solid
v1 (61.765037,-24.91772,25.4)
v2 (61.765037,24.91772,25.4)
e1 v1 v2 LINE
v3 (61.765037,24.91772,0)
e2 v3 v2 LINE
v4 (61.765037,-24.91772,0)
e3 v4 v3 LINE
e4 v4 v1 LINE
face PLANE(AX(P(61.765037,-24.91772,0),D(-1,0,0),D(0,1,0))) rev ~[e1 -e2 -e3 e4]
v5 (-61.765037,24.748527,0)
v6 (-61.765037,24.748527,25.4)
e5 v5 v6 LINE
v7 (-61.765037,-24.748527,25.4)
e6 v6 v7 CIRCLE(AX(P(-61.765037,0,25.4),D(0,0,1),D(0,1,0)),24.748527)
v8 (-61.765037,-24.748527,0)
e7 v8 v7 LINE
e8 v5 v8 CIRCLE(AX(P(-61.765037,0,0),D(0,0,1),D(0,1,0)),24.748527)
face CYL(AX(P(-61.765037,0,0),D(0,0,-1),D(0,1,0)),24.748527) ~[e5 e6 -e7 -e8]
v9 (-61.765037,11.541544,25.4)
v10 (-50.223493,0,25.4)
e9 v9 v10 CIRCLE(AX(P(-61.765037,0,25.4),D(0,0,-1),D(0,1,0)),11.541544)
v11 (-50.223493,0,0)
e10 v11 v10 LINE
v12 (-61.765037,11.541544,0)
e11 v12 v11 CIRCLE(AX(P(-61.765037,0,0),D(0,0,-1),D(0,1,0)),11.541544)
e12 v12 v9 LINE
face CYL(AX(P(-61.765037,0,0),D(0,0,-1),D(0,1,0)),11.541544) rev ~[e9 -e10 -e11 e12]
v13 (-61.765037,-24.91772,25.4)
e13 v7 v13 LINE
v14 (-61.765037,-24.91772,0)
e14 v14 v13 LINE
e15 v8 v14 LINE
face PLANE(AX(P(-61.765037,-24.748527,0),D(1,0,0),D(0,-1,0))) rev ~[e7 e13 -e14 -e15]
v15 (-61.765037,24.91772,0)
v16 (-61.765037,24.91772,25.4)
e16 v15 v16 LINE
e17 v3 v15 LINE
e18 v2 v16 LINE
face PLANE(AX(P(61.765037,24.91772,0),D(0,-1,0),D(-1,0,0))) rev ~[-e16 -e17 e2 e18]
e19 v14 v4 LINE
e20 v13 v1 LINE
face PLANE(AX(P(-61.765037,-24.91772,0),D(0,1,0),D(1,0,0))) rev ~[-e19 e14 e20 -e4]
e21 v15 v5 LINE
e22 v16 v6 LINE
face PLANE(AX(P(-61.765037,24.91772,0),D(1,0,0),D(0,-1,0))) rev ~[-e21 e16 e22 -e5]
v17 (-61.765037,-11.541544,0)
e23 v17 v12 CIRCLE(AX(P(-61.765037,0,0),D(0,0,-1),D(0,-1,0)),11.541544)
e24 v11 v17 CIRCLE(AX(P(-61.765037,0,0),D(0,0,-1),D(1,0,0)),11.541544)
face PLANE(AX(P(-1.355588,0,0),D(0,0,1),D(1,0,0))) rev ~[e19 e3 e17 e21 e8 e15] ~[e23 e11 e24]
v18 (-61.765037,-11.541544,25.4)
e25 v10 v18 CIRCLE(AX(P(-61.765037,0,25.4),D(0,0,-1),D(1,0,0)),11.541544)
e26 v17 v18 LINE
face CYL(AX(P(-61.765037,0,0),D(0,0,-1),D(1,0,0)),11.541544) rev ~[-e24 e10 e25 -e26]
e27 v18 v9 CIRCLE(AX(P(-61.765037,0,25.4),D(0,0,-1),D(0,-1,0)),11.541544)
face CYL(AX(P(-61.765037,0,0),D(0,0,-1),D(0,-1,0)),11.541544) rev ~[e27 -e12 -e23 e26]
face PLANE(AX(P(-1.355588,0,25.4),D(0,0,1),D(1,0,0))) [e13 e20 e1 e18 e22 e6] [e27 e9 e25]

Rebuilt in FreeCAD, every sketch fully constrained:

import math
import FreeCAD as App
import Part
import Sketcher
Q = App.Units.Quantity

doc = App.newDocument("Part")
params = doc.addObject("Spreadsheet::Sheet", "Params")
for row, (alias, value) in enumerate([
    ("pad1_length", "1 in"),
], start=1):
    params.set(f"A{row}", alias)
    params.set(f"B{row}", "=" + value)
    params.setAlias(f"B{row}", alias)

body = doc.addObject("PartDesign::Body", "Body")

# Sketch on XY plane
sketch1 = body.newObject("Sketcher::SketchObject", "Sketch")
sketch1.AttachmentSupport = (doc.getObject("XY_Plane"), [""])
sketch1.MapMode = "FlatFace"
sketch1.addGeometry(Part.LineSegment(App.Vector(-61.77, -24.75, 0), App.Vector(-61.77, -24.92, 0)), False)
sketch1.addGeometry(Part.LineSegment(App.Vector(-61.77, -24.92, 0), App.Vector(61.77, -24.92, 0)), False)
sketch1.addGeometry(Part.LineSegment(App.Vector(61.77, -24.92, 0), App.Vector(61.77, 24.92, 0)), False)
sketch1.addGeometry(Part.LineSegment(App.Vector(61.77, 24.92, 0), App.Vector(-61.77, 24.92, 0)), False)
sketch1.addGeometry(Part.LineSegment(App.Vector(-61.77, 24.92, 0), App.Vector(-61.77, 24.75, 0)), False)
sketch1.addGeometry(Part.ArcOfCircle(Part.Circle(App.Vector(-61.77, 0, 0), App.Vector(0, 0, 1), 24.75), math.radians(90), math.radians(270)), False)
sketch1.addGeometry(Part.ArcOfCircle(Part.Circle(App.Vector(-61.77, 0, 0), App.Vector(0, 0, 1), 11.54), math.radians(0), math.radians(90)), False)
sketch1.addGeometry(Part.ArcOfCircle(Part.Circle(App.Vector(-61.77, 0, 0), App.Vector(0, 0, 1), 11.54), math.radians(-90), math.radians(0)), False)
sketch1.addGeometry(Part.ArcOfCircle(Part.Circle(App.Vector(-61.77, 0, 0), App.Vector(0, 0, 1), 11.54), math.radians(90), math.radians(270)), False)
sketch1.addConstraint(Sketcher.Constraint("Coincident", 0, 2, 1, 1))
sketch1.addConstraint(Sketcher.Constraint("Coincident", 1, 2, 2, 1))
sketch1.addConstraint(Sketcher.Constraint("Coincident", 2, 2, 3, 1))
sketch1.addConstraint(Sketcher.Constraint("Coincident", 3, 2, 4, 1))
sketch1.addConstraint(Sketcher.Constraint("Coincident", 4, 2, 5, 1))
sketch1.addConstraint(Sketcher.Constraint("Coincident", 5, 2, 0, 1))
sketch1.addConstraint(Sketcher.Constraint("Tangent", 6, 1, 7, 2))
sketch1.addConstraint(Sketcher.Constraint("Tangent", 7, 1, 8, 2))
sketch1.addConstraint(Sketcher.Constraint("Tangent", 8, 1, 6, 2))
sketch1.addConstraint(Sketcher.Constraint("Vertical", 0))
sketch1.addConstraint(Sketcher.Constraint("Horizontal", 1))
sketch1.addConstraint(Sketcher.Constraint("Vertical", 2))
sketch1.addConstraint(Sketcher.Constraint("Horizontal", 3))
sketch1.addConstraint(Sketcher.Constraint("Vertical", 4))
sketch1.addConstraint(Sketcher.Constraint("Coincident", 6, 3, 5, 3))
sketch1.addConstraint(Sketcher.Constraint("Symmetric", 0, 2, 2, 2, -1, 1))
sketch1.addConstraint(Sketcher.Constraint("Symmetric", 4, 2, 5, 2, -1))
sketch1.addConstraint(Sketcher.Constraint("PointOnObject", 6, 1, -1))
sketch1.addConstraint(Sketcher.Constraint("Vertical", 8, 3, 0, 2))
sketch1.addConstraint(Sketcher.Constraint("Vertical", 5, 2, 7, 1))
sketch1.addConstraint(Sketcher.Constraint("Vertical", 7, 1, 8, 1))
sketch1.addConstraint(Sketcher.Constraint("Radius", 5, Q("24.748527 mm")))
sketch1.addConstraint(Sketcher.Constraint("Radius", 6, Q("11.541544 mm")))
sketch1.addConstraint(Sketcher.Constraint("DistanceY", 2, 1, 2, 2, Q("49.83544 mm")))
sketch1.addConstraint(Sketcher.Constraint("DistanceX", 1, 1, 1, 2, Q("123.530075 mm")))
pad1 = body.newObject("PartDesign::Pad", "Pad")
pad1.Profile = sketch1
pad1.setExpression("Length", "Params.pad1_length")

doc.recompute()
